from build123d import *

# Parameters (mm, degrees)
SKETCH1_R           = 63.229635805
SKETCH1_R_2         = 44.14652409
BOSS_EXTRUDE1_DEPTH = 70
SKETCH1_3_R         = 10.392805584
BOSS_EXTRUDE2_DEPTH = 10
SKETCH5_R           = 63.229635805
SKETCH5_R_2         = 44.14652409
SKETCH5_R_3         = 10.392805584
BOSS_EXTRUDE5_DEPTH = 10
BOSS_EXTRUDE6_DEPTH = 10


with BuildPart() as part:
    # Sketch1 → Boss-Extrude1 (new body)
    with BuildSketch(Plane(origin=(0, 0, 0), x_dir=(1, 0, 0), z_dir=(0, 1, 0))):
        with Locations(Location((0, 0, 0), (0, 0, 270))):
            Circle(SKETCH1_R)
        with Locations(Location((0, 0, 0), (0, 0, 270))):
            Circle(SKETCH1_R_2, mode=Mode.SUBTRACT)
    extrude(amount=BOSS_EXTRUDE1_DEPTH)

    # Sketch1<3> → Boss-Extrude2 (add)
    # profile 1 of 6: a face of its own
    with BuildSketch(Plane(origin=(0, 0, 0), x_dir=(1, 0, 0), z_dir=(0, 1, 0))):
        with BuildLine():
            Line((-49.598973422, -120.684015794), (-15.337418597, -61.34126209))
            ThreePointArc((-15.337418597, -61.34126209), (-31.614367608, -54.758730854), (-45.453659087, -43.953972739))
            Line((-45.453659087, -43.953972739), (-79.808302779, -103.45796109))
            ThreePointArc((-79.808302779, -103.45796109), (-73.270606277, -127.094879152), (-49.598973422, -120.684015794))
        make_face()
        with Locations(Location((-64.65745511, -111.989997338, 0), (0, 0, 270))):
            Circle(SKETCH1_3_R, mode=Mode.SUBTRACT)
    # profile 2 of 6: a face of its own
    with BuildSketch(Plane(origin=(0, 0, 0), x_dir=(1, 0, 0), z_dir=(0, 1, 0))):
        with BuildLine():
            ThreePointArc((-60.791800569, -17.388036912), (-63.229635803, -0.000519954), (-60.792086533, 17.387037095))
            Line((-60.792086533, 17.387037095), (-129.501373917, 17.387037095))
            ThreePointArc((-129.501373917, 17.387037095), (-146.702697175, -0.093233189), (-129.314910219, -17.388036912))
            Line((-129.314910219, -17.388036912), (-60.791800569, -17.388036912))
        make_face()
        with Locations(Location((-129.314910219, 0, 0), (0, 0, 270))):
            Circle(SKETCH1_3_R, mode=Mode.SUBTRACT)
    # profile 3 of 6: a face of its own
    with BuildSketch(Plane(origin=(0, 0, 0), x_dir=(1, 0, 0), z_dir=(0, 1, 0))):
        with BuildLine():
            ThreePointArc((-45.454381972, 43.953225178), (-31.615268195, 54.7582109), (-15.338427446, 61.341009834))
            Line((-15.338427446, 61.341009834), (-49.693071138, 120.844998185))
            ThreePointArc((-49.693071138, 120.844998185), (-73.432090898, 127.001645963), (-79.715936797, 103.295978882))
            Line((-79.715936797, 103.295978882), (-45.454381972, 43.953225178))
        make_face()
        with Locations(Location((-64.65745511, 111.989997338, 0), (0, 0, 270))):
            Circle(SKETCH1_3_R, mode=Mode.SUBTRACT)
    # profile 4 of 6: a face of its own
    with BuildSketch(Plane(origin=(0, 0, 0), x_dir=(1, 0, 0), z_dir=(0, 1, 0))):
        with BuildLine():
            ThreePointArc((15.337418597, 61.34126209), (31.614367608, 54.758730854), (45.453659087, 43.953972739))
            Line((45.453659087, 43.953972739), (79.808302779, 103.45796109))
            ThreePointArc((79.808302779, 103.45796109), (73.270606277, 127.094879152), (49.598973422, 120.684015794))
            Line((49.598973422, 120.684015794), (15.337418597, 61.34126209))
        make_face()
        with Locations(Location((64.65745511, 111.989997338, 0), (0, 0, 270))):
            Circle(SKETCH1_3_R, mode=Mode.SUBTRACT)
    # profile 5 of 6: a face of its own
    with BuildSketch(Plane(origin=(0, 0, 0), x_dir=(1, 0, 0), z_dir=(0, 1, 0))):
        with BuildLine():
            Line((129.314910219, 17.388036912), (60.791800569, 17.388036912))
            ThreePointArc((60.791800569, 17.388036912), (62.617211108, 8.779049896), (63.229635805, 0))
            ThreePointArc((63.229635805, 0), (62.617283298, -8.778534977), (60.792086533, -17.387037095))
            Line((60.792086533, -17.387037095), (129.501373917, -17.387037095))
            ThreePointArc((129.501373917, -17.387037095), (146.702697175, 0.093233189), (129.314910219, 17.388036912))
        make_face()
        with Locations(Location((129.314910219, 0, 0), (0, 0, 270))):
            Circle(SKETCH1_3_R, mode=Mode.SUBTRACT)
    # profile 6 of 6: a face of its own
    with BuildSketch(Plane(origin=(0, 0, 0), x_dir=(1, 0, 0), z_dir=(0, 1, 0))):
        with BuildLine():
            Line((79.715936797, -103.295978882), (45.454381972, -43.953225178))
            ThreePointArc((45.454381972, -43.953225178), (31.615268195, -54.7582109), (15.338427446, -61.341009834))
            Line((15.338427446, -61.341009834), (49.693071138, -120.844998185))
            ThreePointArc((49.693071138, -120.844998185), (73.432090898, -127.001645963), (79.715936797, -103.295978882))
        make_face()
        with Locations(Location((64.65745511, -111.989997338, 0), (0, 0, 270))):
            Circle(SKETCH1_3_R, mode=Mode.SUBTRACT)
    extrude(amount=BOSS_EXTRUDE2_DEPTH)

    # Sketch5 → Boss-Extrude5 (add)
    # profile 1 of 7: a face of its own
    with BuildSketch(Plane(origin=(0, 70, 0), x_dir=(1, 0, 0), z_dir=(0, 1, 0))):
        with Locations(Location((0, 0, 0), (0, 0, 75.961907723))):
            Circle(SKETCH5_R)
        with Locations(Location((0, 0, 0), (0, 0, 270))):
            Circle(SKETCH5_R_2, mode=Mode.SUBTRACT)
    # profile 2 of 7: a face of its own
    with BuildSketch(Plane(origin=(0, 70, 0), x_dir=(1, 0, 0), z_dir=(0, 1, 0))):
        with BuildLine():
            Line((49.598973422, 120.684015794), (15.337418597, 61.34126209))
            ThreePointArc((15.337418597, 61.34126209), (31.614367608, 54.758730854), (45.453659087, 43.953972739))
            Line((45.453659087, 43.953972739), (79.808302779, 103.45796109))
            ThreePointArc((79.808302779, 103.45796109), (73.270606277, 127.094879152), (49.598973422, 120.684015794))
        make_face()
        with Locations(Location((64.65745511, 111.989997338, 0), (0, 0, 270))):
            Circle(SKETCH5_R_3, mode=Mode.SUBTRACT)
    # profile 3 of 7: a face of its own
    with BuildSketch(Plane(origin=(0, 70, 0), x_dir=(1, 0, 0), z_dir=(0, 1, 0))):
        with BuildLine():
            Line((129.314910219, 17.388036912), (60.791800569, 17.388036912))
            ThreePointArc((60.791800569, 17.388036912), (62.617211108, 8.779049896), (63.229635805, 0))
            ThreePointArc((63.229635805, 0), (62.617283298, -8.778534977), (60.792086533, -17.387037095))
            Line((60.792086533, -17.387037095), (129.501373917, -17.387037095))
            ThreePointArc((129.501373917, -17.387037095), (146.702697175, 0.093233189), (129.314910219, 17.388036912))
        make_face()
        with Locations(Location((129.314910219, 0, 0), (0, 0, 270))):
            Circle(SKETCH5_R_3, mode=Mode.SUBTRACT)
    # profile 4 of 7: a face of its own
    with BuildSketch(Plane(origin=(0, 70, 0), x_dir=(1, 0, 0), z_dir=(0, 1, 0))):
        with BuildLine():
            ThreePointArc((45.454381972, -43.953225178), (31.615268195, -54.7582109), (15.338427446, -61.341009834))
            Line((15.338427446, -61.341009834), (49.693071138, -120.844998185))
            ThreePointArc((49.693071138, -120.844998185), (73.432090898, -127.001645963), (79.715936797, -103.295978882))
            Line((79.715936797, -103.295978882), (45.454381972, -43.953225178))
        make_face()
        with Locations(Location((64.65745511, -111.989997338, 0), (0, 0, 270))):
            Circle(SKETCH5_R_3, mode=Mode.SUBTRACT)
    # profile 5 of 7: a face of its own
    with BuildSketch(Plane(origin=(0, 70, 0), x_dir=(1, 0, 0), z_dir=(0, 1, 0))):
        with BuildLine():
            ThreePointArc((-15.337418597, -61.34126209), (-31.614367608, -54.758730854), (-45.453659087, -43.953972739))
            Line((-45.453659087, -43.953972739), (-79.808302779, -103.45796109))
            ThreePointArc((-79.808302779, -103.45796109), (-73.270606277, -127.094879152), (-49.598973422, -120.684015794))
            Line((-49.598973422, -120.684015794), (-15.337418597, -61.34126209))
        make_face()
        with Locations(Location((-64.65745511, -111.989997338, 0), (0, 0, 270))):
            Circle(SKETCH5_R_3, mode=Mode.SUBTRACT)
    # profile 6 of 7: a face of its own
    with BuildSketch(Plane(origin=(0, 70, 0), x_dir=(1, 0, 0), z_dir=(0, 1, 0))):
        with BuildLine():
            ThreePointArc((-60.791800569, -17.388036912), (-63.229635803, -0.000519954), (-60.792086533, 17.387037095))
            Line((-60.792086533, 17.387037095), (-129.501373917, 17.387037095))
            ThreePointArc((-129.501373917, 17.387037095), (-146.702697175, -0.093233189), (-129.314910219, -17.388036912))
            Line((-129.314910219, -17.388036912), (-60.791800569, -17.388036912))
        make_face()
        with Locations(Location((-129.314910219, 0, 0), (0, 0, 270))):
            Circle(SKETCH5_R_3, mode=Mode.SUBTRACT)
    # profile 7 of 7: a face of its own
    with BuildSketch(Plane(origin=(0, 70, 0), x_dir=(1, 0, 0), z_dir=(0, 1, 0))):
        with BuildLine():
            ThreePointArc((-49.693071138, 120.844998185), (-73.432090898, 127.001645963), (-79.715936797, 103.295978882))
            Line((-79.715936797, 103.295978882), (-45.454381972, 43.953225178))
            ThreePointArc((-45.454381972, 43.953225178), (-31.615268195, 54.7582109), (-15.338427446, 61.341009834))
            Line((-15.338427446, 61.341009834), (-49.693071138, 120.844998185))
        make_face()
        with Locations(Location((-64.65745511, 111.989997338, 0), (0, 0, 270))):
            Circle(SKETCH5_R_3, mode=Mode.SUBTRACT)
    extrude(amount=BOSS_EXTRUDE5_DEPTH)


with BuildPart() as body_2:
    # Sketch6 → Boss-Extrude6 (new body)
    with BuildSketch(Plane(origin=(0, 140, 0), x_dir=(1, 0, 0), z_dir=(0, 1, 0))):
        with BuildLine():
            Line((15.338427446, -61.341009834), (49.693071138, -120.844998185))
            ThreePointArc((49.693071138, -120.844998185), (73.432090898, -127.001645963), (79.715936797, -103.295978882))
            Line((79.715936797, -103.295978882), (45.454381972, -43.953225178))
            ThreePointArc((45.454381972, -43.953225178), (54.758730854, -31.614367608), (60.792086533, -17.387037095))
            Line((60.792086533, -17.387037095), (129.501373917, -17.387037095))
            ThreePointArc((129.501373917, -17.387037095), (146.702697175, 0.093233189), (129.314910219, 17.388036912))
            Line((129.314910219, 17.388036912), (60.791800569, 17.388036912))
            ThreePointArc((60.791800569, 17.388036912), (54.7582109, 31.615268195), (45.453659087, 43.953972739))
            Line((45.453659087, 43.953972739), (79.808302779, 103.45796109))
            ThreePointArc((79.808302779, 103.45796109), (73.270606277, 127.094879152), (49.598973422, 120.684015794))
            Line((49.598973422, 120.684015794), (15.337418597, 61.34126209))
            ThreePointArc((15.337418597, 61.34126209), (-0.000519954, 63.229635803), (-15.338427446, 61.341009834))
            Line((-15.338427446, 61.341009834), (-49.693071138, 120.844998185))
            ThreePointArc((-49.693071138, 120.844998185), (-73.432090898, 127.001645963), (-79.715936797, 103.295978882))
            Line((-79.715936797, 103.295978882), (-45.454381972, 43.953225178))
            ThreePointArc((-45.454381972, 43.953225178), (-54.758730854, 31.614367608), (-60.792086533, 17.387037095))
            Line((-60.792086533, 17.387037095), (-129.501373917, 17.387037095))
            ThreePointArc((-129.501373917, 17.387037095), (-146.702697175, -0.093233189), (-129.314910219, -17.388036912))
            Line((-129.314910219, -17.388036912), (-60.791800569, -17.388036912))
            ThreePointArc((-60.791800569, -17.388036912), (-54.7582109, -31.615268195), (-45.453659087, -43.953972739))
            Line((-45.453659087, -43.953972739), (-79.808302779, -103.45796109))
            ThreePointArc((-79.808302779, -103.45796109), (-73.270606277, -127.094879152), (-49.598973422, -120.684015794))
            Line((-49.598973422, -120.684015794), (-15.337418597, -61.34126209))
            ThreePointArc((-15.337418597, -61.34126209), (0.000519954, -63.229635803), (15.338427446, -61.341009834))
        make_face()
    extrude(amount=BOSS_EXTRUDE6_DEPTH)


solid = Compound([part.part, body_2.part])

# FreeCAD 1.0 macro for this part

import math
import FreeCAD as App
import Part
import Sketcher
from FreeCAD import Vector
Q = App.Units.Quantity

doc = App.newDocument("Part")
params = doc.addObject("Spreadsheet::Sheet", "Params")
for row, (alias, value) in enumerate([
    ("pad1_length", "70 mm"),
    ("pad2_length", "10 mm"),
    ("pad3_length", "10 mm"),
    ("pad4_length", "10 mm"),
], start=1):
    params.set(f"A{row}", alias)
    params.set(f"B{row}", "=" + value)
    params.setAlias(f"B{row}", alias)

body = doc.addObject("PartDesign::Body", "Body")

# Sketch on XZ plane
sketch1 = body.newObject("Sketcher::SketchObject", "Sketch")
sketch1.AttachmentSupport = (doc.getObject("XZ_Plane"), [""])
sketch1.MapMode = "FlatFace"
sketch1.addGeometry(Part.Circle(Vector(0, 0, 0), Vector(0, 0, 1), 63), False)
sketch1.addGeometry(Part.Circle(Vector(0, 0, 0), Vector(0, 0, 1), 44), False)
sketch1.addConstraint(Sketcher.Constraint("Coincident", 0, 3, -1, 1))
sketch1.addConstraint(Sketcher.Constraint("Coincident", 1, 3, -1, 1))
sketch1.addConstraint(Sketcher.Constraint("Diameter", 0, Q("126.459272 mm")))
sketch1.addConstraint(Sketcher.Constraint("Diameter", 1, Q("88.293048 mm")))
pad1 = body.newObject("PartDesign::Pad", "Pad")
pad1.Profile = sketch1
pad1.setExpression("Length", "Params.pad1_length")
pad1.Reversed = True

# Sketch on XZ plane
sketch2 = body.newObject("Sketcher::SketchObject", "Sketch001")
sketch2.AttachmentSupport = (doc.getObject("XZ_Plane"), [""])
sketch2.MapMode = "FlatFace"
sketch2.addGeometry(Part.LineSegment(Vector(-50, 121, 0), Vector(-15, 61, 0)), False)
sketch2.addGeometry(Part.ArcOfCircle(Part.Circle(Vector(0, 0, 0), Vector(0, 0, 1), 63), math.radians(104), math.radians(136)), False)
sketch2.addGeometry(Part.LineSegment(Vector(-45, 44, 0), Vector(-80, 103, 0)), False)
sketch2.addGeometry(Part.ArcOfCircle(Part.Circle(Vector(-65, 112, 0), Vector(0, 0, 1), 17), math.radians(30), math.radians(209)), False)
sketch2.addGeometry(Part.Circle(Vector(-65, 112, 0), Vector(0, 0, 1), 10), False)
sketch2.addGeometry(Part.ArcOfCircle(Part.Circle(Vector(0, 0, 0), Vector(0, 0, 1), 63), math.radians(164), math.radians(196)), False)
sketch2.addGeometry(Part.LineSegment(Vector(-61, -17, 0), Vector(-130, -17, 0)), False)
sketch2.addGeometry(Part.ArcOfCircle(Part.Circle(Vector(-129, 0, 0), Vector(0, 0, 1), 17), math.radians(90), math.radians(269)), False)
sketch2.addGeometry(Part.LineSegment(Vector(-129, 17, 0), Vector(-61, 17, 0)), False)
sketch2.addGeometry(Part.Circle(Vector(-129, 0, 0), Vector(0, 0, 1), 10), False)
sketch2.addGeometry(Part.ArcOfCircle(Part.Circle(Vector(0, 0, 0), Vector(0, 0, 1), 63), math.radians(-136), math.radians(-104)), False)
sketch2.addGeometry(Part.LineSegment(Vector(-15, -61, 0), Vector(-50, -121, 0)), False)
sketch2.addGeometry(Part.ArcOfCircle(Part.Circle(Vector(-65, -112, 0), Vector(0, 0, 1), 17), math.radians(150), math.radians(329)), False)
sketch2.addGeometry(Part.LineSegment(Vector(-80, -103, 0), Vector(-45, -44, 0)), False)
sketch2.addGeometry(Part.Circle(Vector(-65, -112, 0), Vector(0, 0, 1), 10), False)
sketch2.addGeometry(Part.ArcOfCircle(Part.Circle(Vector(0, 0, 0), Vector(0, 0, 1), 63), math.radians(-76), math.radians(-44)), False)
sketch2.addGeometry(Part.LineSegment(Vector(45, -44, 0), Vector(80, -103, 0)), False)
sketch2.addGeometry(Part.ArcOfCircle(Part.Circle(Vector(65, -112, 0), Vector(0, 0, 1), 17), math.radians(-150), math.radians(29)), False)
sketch2.addGeometry(Part.LineSegment(Vector(50, -121, 0), Vector(15, -61, 0)), False)
sketch2.addGeometry(Part.Circle(Vector(65, -112, 0), Vector(0, 0, 1), 10), False)
sketch2.addGeometry(Part.LineSegment(Vector(129, -17, 0), Vector(61, -17, 0)), False)
sketch2.addGeometry(Part.ArcOfCircle(Part.Circle(Vector(0, 0, 0), Vector(0, 0, 1), 63), math.radians(-15.96), math.radians(0)), False)
sketch2.addGeometry(Part.ArcOfCircle(Part.Circle(Vector(0, 0, 0), Vector(0, 0, 1), 63), math.radians(0), math.radians(15.96)), False)
sketch2.addGeometry(Part.LineSegment(Vector(61, 17, 0), Vector(130, 17, 0)), False)
sketch2.addGeometry(Part.ArcOfCircle(Part.Circle(Vector(129, 0, 0), Vector(0, 0, 1), 17), math.radians(-90), math.radians(89)), False)
sketch2.addGeometry(Part.Circle(Vector(129, 0, 0), Vector(0, 0, 1), 10), False)
sketch2.addGeometry(Part.LineSegment(Vector(80, 103, 0), Vector(45, 44, 0)), False)
sketch2.addGeometry(Part.ArcOfCircle(Part.Circle(Vector(0, 0, 0), Vector(0, 0, 1), 63), math.radians(44), math.radians(76)), False)
sketch2.addGeometry(Part.LineSegment(Vector(15, 61, 0), Vector(50, 121, 0)), False)
sketch2.addGeometry(Part.ArcOfCircle(Part.Circle(Vector(65, 112, 0), Vector(0, 0, 1), 17), math.radians(-30), math.radians(149)), False)
sketch2.addGeometry(Part.Circle(Vector(65, 112, 0), Vector(0, 0, 1), 10), False)
sketch2.addConstraint(Sketcher.Constraint("Coincident", 0, 2, 1, 1))
sketch2.addConstraint(Sketcher.Constraint("Coincident", 1, 2, 2, 1))
sketch2.addConstraint(Sketcher.Constraint("Coincident", 2, 2, 3, 2))
sketch2.addConstraint(Sketcher.Constraint("Tangent", 3, 1, 0, 1))
sketch2.addConstraint(Sketcher.Constraint("Coincident", 5, 2, 6, 1))
sketch2.addConstraint(Sketcher.Constraint("Coincident", 6, 2, 7, 2))
sketch2.addConstraint(Sketcher.Constraint("Tangent", 7, 1, 8, 1))
sketch2.addConstraint(Sketcher.Constraint("Coincident", 8, 2, 5, 1))
sketch2.addConstraint(Sketcher.Constraint("Coincident", 10, 2, 11, 1))
sketch2.addConstraint(Sketcher.Constraint("Coincident", 11, 2, 12, 2))
sketch2.addConstraint(Sketcher.Constraint("Tangent", 12, 1, 13, 1))
sketch2.addConstraint(Sketcher.Constraint("Coincident", 13, 2, 10, 1))
sketch2.addConstraint(Sketcher.Constraint("Coincident", 15, 2, 16, 1))
sketch2.addConstraint(Sketcher.Constraint("Coincident", 16, 2, 17, 2))
sketch2.addConstraint(Sketcher.Constraint("Tangent", 17, 1, 18, 1))
sketch2.addConstraint(Sketcher.Constraint("Coincident", 18, 2, 15, 1))
sketch2.addConstraint(Sketcher.Constraint("Coincident", 20, 2, 21, 1))
sketch2.addConstraint(Sketcher.Constraint("Tangent", 21, 2, 22, 1))
sketch2.addConstraint(Sketcher.Constraint("Coincident", 22, 2, 23, 1))
sketch2.addConstraint(Sketcher.Constraint("Coincident", 23, 2, 24, 2))
sketch2.addConstraint(Sketcher.Constraint("Tangent", 24, 1, 20, 1))
sketch2.addConstraint(Sketcher.Constraint("Coincident", 26, 2, 27, 1))
sketch2.addConstraint(Sketcher.Constraint("Coincident", 27, 2, 28, 1))
sketch2.addConstraint(Sketcher.Constraint("Coincident", 28, 2, 29, 2))
sketch2.addConstraint(Sketcher.Constraint("Tangent", 29, 1, 26, 1))
sketch2.addConstraint(Sketcher.Constraint("Horizontal", 6))
sketch2.addConstraint(Sketcher.Constraint("Horizontal", 8))
sketch2.addConstraint(Sketcher.Constraint("Horizontal", 20))
sketch2.addConstraint(Sketcher.Constraint("Horizontal", 23))
sketch2.addConstraint(Sketcher.Constraint("Coincident", 1, 3, -1, 1))
sketch2.addConstraint(Sketcher.Constraint("Coincident", 5, 3, -1, 1))
sketch2.addConstraint(Sketcher.Constraint("Coincident", 10, 3, -1, 1))
sketch2.addConstraint(Sketcher.Constraint("Coincident", 15, 3, -1, 1))
sketch2.addConstraint(Sketcher.Constraint("Coincident", 21, 3, -1, 1))
sketch2.addConstraint(Sketcher.Constraint("Coincident", 27, 3, -1, 1))
sketch2.addConstraint(Sketcher.Constraint("Coincident", 4, 3, 3, 3))
sketch2.addConstraint(Sketcher.Constraint("Coincident", 9, 3, 7, 3))
sketch2.addConstraint(Sketcher.Constraint("Coincident", 14, 3, 12, 3))
sketch2.addConstraint(Sketcher.Constraint("Coincident", 19, 3, 17, 3))
sketch2.addConstraint(Sketcher.Constraint("Coincident", 25, 3, 24, 3))
sketch2.addConstraint(Sketcher.Constraint("Coincident", 30, 3, 29, 3))
sketch2.addConstraint(Sketcher.Constraint("Equal", 1, 5))
sketch2.addConstraint(Sketcher.Constraint("Equal", 3, 7))
sketch2.addConstraint(Sketcher.Constraint("Equal", 4, 9))
sketch2.addConstraint(Sketcher.Constraint("Equal", 5, 10))
sketch2.addConstraint(Sketcher.Constraint("Equal", 7, 12))
sketch2.addConstraint(Sketcher.Constraint("Equal", 9, 14))
sketch2.addConstraint(Sketcher.Constraint("Equal", 10, 15))
sketch2.addConstraint(Sketcher.Constraint("Equal", 12, 17))
sketch2.addConstraint(Sketcher.Constraint("Equal", 14, 19))
sketch2.addConstraint(Sketcher.Constraint("Equal", 15, 21))
sketch2.addConstraint(Sketcher.Constraint("Equal", 21, 22))
sketch2.addConstraint(Sketcher.Constraint("Equal", 17, 24))
sketch2.addConstraint(Sketcher.Constraint("Equal", 19, 25))
sketch2.addConstraint(Sketcher.Constraint("Equal", 22, 27))
sketch2.addConstraint(Sketcher.Constraint("Equal", 24, 29))
sketch2.addConstraint(Sketcher.Constraint("Equal", 25, 30))
sketch2.addConstraint(Sketcher.Constraint("Symmetric", 3, 3, 17, 3, -1, 1))
sketch2.addConstraint(Sketcher.Constraint("Symmetric", 7, 3, 24, 3, -1, 1))
sketch2.addConstraint(Sketcher.Constraint("Symmetric", 12, 3, 29, 3, -1, 1))
sketch2.addConstraint(Sketcher.Constraint("Symmetric", 12, 3, 17, 3, -2))
sketch2.addConstraint(Sketcher.Constraint("PointOnObject", 7, 3, -1))
sketch2.addConstraint(Sketcher.Constraint("PointOnObject", 21, 2, -1))
sketch2.addConstraint(Sketcher.Constraint("Parallel", 0, 2))
sketch2.addConstraint(Sketcher.Constraint("Parallel", 11, 13))
sketch2.addConstraint(Sketcher.Constraint("Parallel", 2, 16))
sketch2.addConstraint(Sketcher.Constraint("Parallel", 16, 18))
sketch2.addConstraint(Sketcher.Constraint("Parallel", 13, 26))
sketch2.addConstraint(Sketcher.Constraint("Parallel", 26, 28))
sketch2.addConstraint(Sketcher.Constraint("Equal", 6, 23))
sketch2.addConstraint(Sketcher.Constraint("Equal", 2, 11))
sketch2.addConstraint(Sketcher.Constraint("Equal", 0, 13))
sketch2.addConstraint(Sketcher.Constraint("Equal", 11, 16))
sketch2.addConstraint(Sketcher.Constraint("Equal", 16, 28))
sketch2.addConstraint(Sketcher.Constraint("Angle", 0, Q("-60 deg")))
sketch2.addConstraint(Sketcher.Constraint("Angle", 11, Q("-120 deg")))
sketch2.addConstraint(Sketcher.Constraint("Diameter", 4, Q("20.785611 mm")))
sketch2.addConstraint(Sketcher.Constraint("DistanceY", 11, 2, -1, 1, Q("120.844998 mm")))
sketch2.addConstraint(Sketcher.Constraint("Radius", 1, Q("63.229636 mm")))
sketch2.addConstraint(Sketcher.Constraint("Radius", 3, Q("17.388037 mm")))
sketch2.addConstraint(Sketcher.Constraint("DistanceY", 11, 2, 12, 3, Q("8.855001 mm")))
sketch2.addConstraint(Sketcher.Constraint("DistanceX", 8, 1, 8, 2, Q("68.52311 mm")))
sketch2.addConstraint(Sketcher.Constraint("DistanceX", 6, 2, 6, 1, Q("68.709287 mm")))
pad2 = body.newObject("PartDesign::Pad", "Pad001")
pad2.Profile = sketch2
pad2.setExpression("Length", "Params.pad2_length")
pad2.Reversed = True

# Sketch on XZ plane
sketch3 = body.newObject("Sketcher::SketchObject", "Sketch002")
sketch3.AttachmentSupport = (doc.getObject("XZ_Plane"), [""])
sketch3.MapMode = "FlatFace"
sketch3.AttachmentOffset = App.Placement(Vector(0, 0, -70), App.Rotation())
sketch3.addGeometry(Part.ArcOfCircle(Part.Circle(Vector(0, 0, 0), Vector(0, 0, 1), 63), math.radians(-104), math.radians(-76)), False)
sketch3.addGeometry(Part.LineSegment(Vector(-15, -61, 0), Vector(-50, -121, 0)), False)
sketch3.addGeometry(Part.ArcOfCircle(Part.Circle(Vector(-65, -112, 0), Vector(0, 0, 1), 17), math.radians(150), math.radians(329)), False)
sketch3.addGeometry(Part.LineSegment(Vector(-80, -103, 0), Vector(-45, -44, 0)), False)
sketch3.addGeometry(Part.ArcOfCircle(Part.Circle(Vector(0, 0, 0), Vector(0, 0, 1), 63), math.radians(-164), math.radians(-136)), False)
sketch3.addGeometry(Part.LineSegment(Vector(-61, -17, 0), Vector(-130, -17, 0)), False)
sketch3.addGeometry(Part.ArcOfCircle(Part.Circle(Vector(-129, 0, 0), Vector(0, 0, 1), 17), math.radians(90), math.radians(269)), False)
sketch3.addGeometry(Part.LineSegment(Vector(-129, 17, 0), Vector(-61, 17, 0)), False)
sketch3.addGeometry(Part.ArcOfCircle(Part.Circle(Vector(0, 0, 0), Vector(0, 0, 1), 63), math.radians(136), math.radians(164)), False)
sketch3.addGeometry(Part.LineSegment(Vector(-45, 44, 0), Vector(-80, 103, 0)), False)
sketch3.addGeometry(Part.ArcOfCircle(Part.Circle(Vector(-65, 112, 0), Vector(0, 0, 1), 17), math.radians(30), math.radians(209)), False)
sketch3.addGeometry(Part.LineSegment(Vector(-50, 121, 0), Vector(-15, 61, 0)), False)
sketch3.addGeometry(Part.ArcOfCircle(Part.Circle(Vector(0, 0, 0), Vector(0, 0, 1), 63), math.radians(76), math.radians(104)), False)
sketch3.addGeometry(Part.LineSegment(Vector(15, 61, 0), Vector(50, 121, 0)), False)
sketch3.addGeometry(Part.ArcOfCircle(Part.Circle(Vector(65, 112, 0), Vector(0, 0, 1), 17), math.radians(-30), math.radians(149)), False)
sketch3.addGeometry(Part.LineSegment(Vector(80, 103, 0), Vector(45, 44, 0)), False)
sketch3.addGeometry(Part.ArcOfCircle(Part.Circle(Vector(0, 0, 0), Vector(0, 0, 1), 63), math.radians(16), math.radians(44)), False)
sketch3.addGeometry(Part.LineSegment(Vector(61, 17, 0), Vector(130, 17, 0)), False)
sketch3.addGeometry(Part.ArcOfCircle(Part.Circle(Vector(129, 0, 0), Vector(0, 0, 1), 17), math.radians(-90), math.radians(89)), False)
sketch3.addGeometry(Part.LineSegment(Vector(129, -17, 0), Vector(61, -17, 0)), False)
sketch3.addGeometry(Part.ArcOfCircle(Part.Circle(Vector(0, 0, 0), Vector(0, 0, 1), 63), math.radians(-44), math.radians(-16)), False)
sketch3.addGeometry(Part.LineSegment(Vector(45, -44, 0), Vector(80, -103, 0)), False)
sketch3.addGeometry(Part.ArcOfCircle(Part.Circle(Vector(65, -112, 0), Vector(0, 0, 1), 17), math.radians(-150), math.radians(29)), False)
sketch3.addGeometry(Part.LineSegment(Vector(50, -121, 0), Vector(15, -61, 0)), False)
sketch3.addGeometry(Part.Circle(Vector(0, 0, 0), Vector(0, 0, 1), 44), False)
sketch3.addGeometry(Part.Circle(Vector(-65, -112, 0), Vector(0, 0, 1), 10), False)
sketch3.addGeometry(Part.Circle(Vector(-129, 0, 0), Vector(0, 0, 1), 10), False)
sketch3.addGeometry(Part.Circle(Vector(-65, 112, 0), Vector(0, 0, 1), 10), False)
sketch3.addGeometry(Part.Circle(Vector(65, 112, 0), Vector(0, 0, 1), 10), False)
sketch3.addGeometry(Part.Circle(Vector(129, 0, 0), Vector(0, 0, 1), 10), False)
sketch3.addGeometry(Part.Circle(Vector(65, -112, 0), Vector(0, 0, 1), 10), False)
sketch3.addConstraint(Sketcher.Constraint("Coincident", 0, 1, 1, 1))
sketch3.addConstraint(Sketcher.Constraint("Coincident", 1, 2, 2, 2))
sketch3.addConstraint(Sketcher.Constraint("Tangent", 2, 1, 3, 1))
sketch3.addConstraint(Sketcher.Constraint("Coincident", 3, 2, 4, 2))
sketch3.addConstraint(Sketcher.Constraint("Coincident", 4, 1, 5, 1))
sketch3.addConstraint(Sketcher.Constraint("Coincident", 5, 2, 6, 2))
sketch3.addConstraint(Sketcher.Constraint("Tangent", 6, 1, 7, 1))
sketch3.addConstraint(Sketcher.Constraint("Coincident", 7, 2, 8, 2))
sketch3.addConstraint(Sketcher.Constraint("Coincident", 8, 1, 9, 1))
sketch3.addConstraint(Sketcher.Constraint("Coincident", 9, 2, 10, 2))
sketch3.addConstraint(Sketcher.Constraint("Tangent", 10, 1, 11, 1))
sketch3.addConstraint(Sketcher.Constraint("Coincident", 11, 2, 12, 2))
sketch3.addConstraint(Sketcher.Constraint("Coincident", 12, 1, 13, 1))
sketch3.addConstraint(Sketcher.Constraint("Coincident", 13, 2, 14, 2))
sketch3.addConstraint(Sketcher.Constraint("Tangent", 14, 1, 15, 1))
sketch3.addConstraint(Sketcher.Constraint("Coincident", 15, 2, 16, 2))
sketch3.addConstraint(Sketcher.Constraint("Coincident", 16, 1, 17, 1))
sketch3.addConstraint(Sketcher.Constraint("Coincident", 17, 2, 18, 2))
sketch3.addConstraint(Sketcher.Constraint("Tangent", 18, 1, 19, 1))
sketch3.addConstraint(Sketcher.Constraint("Coincident", 19, 2, 20, 2))
sketch3.addConstraint(Sketcher.Constraint("Coincident", 20, 1, 21, 1))
sketch3.addConstraint(Sketcher.Constraint("Coincident", 21, 2, 22, 2))
sketch3.addConstraint(Sketcher.Constraint("Tangent", 22, 1, 23, 1))
sketch3.addConstraint(Sketcher.Constraint("Coincident", 23, 2, 0, 2))
sketch3.addConstraint(Sketcher.Constraint("Horizontal", 5))
sketch3.addConstraint(Sketcher.Constraint("Horizontal", 7))
sketch3.addConstraint(Sketcher.Constraint("Horizontal", 17))
sketch3.addConstraint(Sketcher.Constraint("Horizontal", 19))
sketch3.addConstraint(Sketcher.Constraint("Coincident", 0, 3, -1, 1))
sketch3.addConstraint(Sketcher.Constraint("Coincident", 4, 3, -1, 1))
sketch3.addConstraint(Sketcher.Constraint("Coincident", 8, 3, -1, 1))
sketch3.addConstraint(Sketcher.Constraint("Coincident", 12, 3, -1, 1))
sketch3.addConstraint(Sketcher.Constraint("Coincident", 16, 3, -1, 1))
sketch3.addConstraint(Sketcher.Constraint("Coincident", 20, 3, -1, 1))
sketch3.addConstraint(Sketcher.Constraint("Coincident", 24, 3, -1, 1))
sketch3.addConstraint(Sketcher.Constraint("Coincident", 25, 3, 2, 3))
sketch3.addConstraint(Sketcher.Constraint("Coincident", 26, 3, 6, 3))
sketch3.addConstraint(Sketcher.Constraint("Coincident", 27, 3, 10, 3))
sketch3.addConstraint(Sketcher.Constraint("Coincident", 28, 3, 14, 3))
sketch3.addConstraint(Sketcher.Constraint("Coincident", 29, 3, 18, 3))
sketch3.addConstraint(Sketcher.Constraint("Coincident", 30, 3, 22, 3))
sketch3.addConstraint(Sketcher.Constraint("Equal", 0, 4))
sketch3.addConstraint(Sketcher.Constraint("Equal", 2, 6))
sketch3.addConstraint(Sketcher.Constraint("Equal", 4, 8))
sketch3.addConstraint(Sketcher.Constraint("Equal", 6, 10))
sketch3.addConstraint(Sketcher.Constraint("Equal", 8, 12))
sketch3.addConstraint(Sketcher.Constraint("Equal", 10, 14))
sketch3.addConstraint(Sketcher.Constraint("Equal", 12, 16))
sketch3.addConstraint(Sketcher.Constraint("Equal", 14, 18))
sketch3.addConstraint(Sketcher.Constraint("Equal", 16, 20))
sketch3.addConstraint(Sketcher.Constraint("Equal", 18, 22))
sketch3.addConstraint(Sketcher.Constraint("Equal", 25, 26))
sketch3.addConstraint(Sketcher.Constraint("Equal", 26, 27))
sketch3.addConstraint(Sketcher.Constraint("Equal", 27, 28))
sketch3.addConstraint(Sketcher.Constraint("Equal", 28, 29))
sketch3.addConstraint(Sketcher.Constraint("Equal", 29, 30))
sketch3.addConstraint(Sketcher.Constraint("Symmetric", 2, 3, 14, 3, -1, 1))
sketch3.addConstraint(Sketcher.Constraint("Symmetric", 6, 3, 18, 3, -1, 1))
sketch3.addConstraint(Sketcher.Constraint("Symmetric", 10, 3, 22, 3, -1, 1))
sketch3.addConstraint(Sketcher.Constraint("Symmetric", 10, 3, 14, 3, -2))
sketch3.addConstraint(Sketcher.Constraint("PointOnObject", 6, 3, -1))
sketch3.addConstraint(Sketcher.Constraint("Parallel", 1, 3))
sketch3.addConstraint(Sketcher.Constraint("Parallel", 9, 11))
sketch3.addConstraint(Sketcher.Constraint("Parallel", 3, 13))
sketch3.addConstraint(Sketcher.Constraint("Parallel", 13, 15))
sketch3.addConstraint(Sketcher.Constraint("Parallel", 11, 21))
sketch3.addConstraint(Sketcher.Constraint("Parallel", 21, 23))
sketch3.addConstraint(Sketcher.Constraint("Equal", 5, 17))
sketch3.addConstraint(Sketcher.Constraint("Equal", 1, 9))
sketch3.addConstraint(Sketcher.Constraint("Equal", 3, 11))
sketch3.addConstraint(Sketcher.Constraint("Equal", 9, 13))
sketch3.addConstraint(Sketcher.Constraint("Equal", 13, 21))
sketch3.addConstraint(Sketcher.Constraint("Angle", 1, Q("-120 deg")))
sketch3.addConstraint(Sketcher.Constraint("Angle", 9, Q("120 deg")))
sketch3.addConstraint(Sketcher.Constraint("Diameter", 24, Q("88.293048 mm")))
sketch3.addConstraint(Sketcher.Constraint("Diameter", 25, Q("20.785611 mm")))
sketch3.addConstraint(Sketcher.Constraint("DistanceY", 1, 2, -1, 1, Q("120.844998 mm")))
sketch3.addConstraint(Sketcher.Constraint("Radius", 0, Q("63.229636 mm")))
sketch3.addConstraint(Sketcher.Constraint("Radius", 2, Q("17.388037 mm")))
sketch3.addConstraint(Sketcher.Constraint("DistanceY", 1, 2, 2, 3, Q("8.855001 mm")))
sketch3.addConstraint(Sketcher.Constraint("DistanceX", 7, 1, 7, 2, Q("68.52311 mm")))
sketch3.addConstraint(Sketcher.Constraint("DistanceX", 5, 2, 5, 1, Q("68.709287 mm")))
pad3 = body.newObject("PartDesign::Pad", "Pad002")
pad3.Profile = sketch3
pad3.setExpression("Length", "Params.pad3_length")
pad3.Reversed = True
body2 = doc.addObject("PartDesign::Body", "Body001")

# Sketch on XZ plane
sketch4 = body2.newObject("Sketcher::SketchObject", "Sketch003")
sketch4.AttachmentSupport = (doc.getObject("XZ_Plane001"), [""])
sketch4.MapMode = "FlatFace"
sketch4.AttachmentOffset = App.Placement(Vector(0, 0, -140), App.Rotation())
sketch4.addGeometry(Part.LineSegment(Vector(15, 61, 0), Vector(50, 121, 0)), False)
sketch4.addGeometry(Part.ArcOfCircle(Part.Circle(Vector(65, 112, 0), Vector(0, 0, 1), 17), math.radians(-30), math.radians(149)), False)
sketch4.addGeometry(Part.LineSegment(Vector(80, 103, 0), Vector(45, 44, 0)), False)
sketch4.addGeometry(Part.ArcOfCircle(Part.Circle(Vector(0, 0, 0), Vector(0, 0, 1), 63), math.radians(16), math.radians(44)), False)
sketch4.addGeometry(Part.LineSegment(Vector(61, 17, 0), Vector(130, 17, 0)), False)
sketch4.addGeometry(Part.ArcOfCircle(Part.Circle(Vector(129, 0, 0), Vector(0, 0, 1), 17), math.radians(-90), math.radians(89)), False)
sketch4.addGeometry(Part.LineSegment(Vector(129, -17, 0), Vector(61, -17, 0)), False)
sketch4.addGeometry(Part.ArcOfCircle(Part.Circle(Vector(0, 0, 0), Vector(0, 0, 1), 63), math.radians(-44), math.radians(-16)), False)
sketch4.addGeometry(Part.LineSegment(Vector(45, -44, 0), Vector(80, -103, 0)), False)
sketch4.addGeometry(Part.ArcOfCircle(Part.Circle(Vector(65, -112, 0), Vector(0, 0, 1), 17), math.radians(-150), math.radians(29)), False)
sketch4.addGeometry(Part.LineSegment(Vector(50, -121, 0), Vector(15, -61, 0)), False)
sketch4.addGeometry(Part.ArcOfCircle(Part.Circle(Vector(0, 0, 0), Vector(0, 0, 1), 63), math.radians(-104), math.radians(-76)), False)
sketch4.addGeometry(Part.LineSegment(Vector(-15, -61, 0), Vector(-50, -121, 0)), False)
sketch4.addGeometry(Part.ArcOfCircle(Part.Circle(Vector(-65, -112, 0), Vector(0, 0, 1), 17), math.radians(150), math.radians(329)), False)
sketch4.addGeometry(Part.LineSegment(Vector(-80, -103, 0), Vector(-45, -44, 0)), False)
sketch4.addGeometry(Part.ArcOfCircle(Part.Circle(Vector(0, 0, 0), Vector(0, 0, 1), 63), math.radians(-164), math.radians(-136)), False)
sketch4.addGeometry(Part.LineSegment(Vector(-61, -17, 0), Vector(-130, -17, 0)), False)
sketch4.addGeometry(Part.ArcOfCircle(Part.Circle(Vector(-129, 0, 0), Vector(0, 0, 1), 17), math.radians(90), math.radians(269)), False)
sketch4.addGeometry(Part.LineSegment(Vector(-129, 17, 0), Vector(-61, 17, 0)), False)
sketch4.addGeometry(Part.ArcOfCircle(Part.Circle(Vector(0, 0, 0), Vector(0, 0, 1), 63), math.radians(136), math.radians(164)), False)
sketch4.addGeometry(Part.LineSegment(Vector(-45, 44, 0), Vector(-80, 103, 0)), False)
sketch4.addGeometry(Part.ArcOfCircle(Part.Circle(Vector(-65, 112, 0), Vector(0, 0, 1), 17), math.radians(30), math.radians(209)), False)
sketch4.addGeometry(Part.LineSegment(Vector(-50, 121, 0), Vector(-15, 61, 0)), False)
sketch4.addGeometry(Part.ArcOfCircle(Part.Circle(Vector(0, 0, 0), Vector(0, 0, 1), 63), math.radians(76), math.radians(104)), False)
sketch4.addConstraint(Sketcher.Constraint("Coincident", 0, 2, 1, 2))
sketch4.addConstraint(Sketcher.Constraint("Tangent", 1, 1, 2, 1))
sketch4.addConstraint(Sketcher.Constraint("Coincident", 2, 2, 3, 2))
sketch4.addConstraint(Sketcher.Constraint("Coincident", 3, 1, 4, 1))
sketch4.addConstraint(Sketcher.Constraint("Coincident", 4, 2, 5, 2))
sketch4.addConstraint(Sketcher.Constraint("Tangent", 5, 1, 6, 1))
sketch4.addConstraint(Sketcher.Constraint("Coincident", 6, 2, 7, 2))
sketch4.addConstraint(Sketcher.Constraint("Coincident", 7, 1, 8, 1))
sketch4.addConstraint(Sketcher.Constraint("Coincident", 8, 2, 9, 2))
sketch4.addConstraint(Sketcher.Constraint("Tangent", 9, 1, 10, 1))
sketch4.addConstraint(Sketcher.Constraint("Coincident", 10, 2, 11, 2))
sketch4.addConstraint(Sketcher.Constraint("Coincident", 11, 1, 12, 1))
sketch4.addConstraint(Sketcher.Constraint("Coincident", 12, 2, 13, 2))
sketch4.addConstraint(Sketcher.Constraint("Tangent", 13, 1, 14, 1))
sketch4.addConstraint(Sketcher.Constraint("Coincident", 14, 2, 15, 2))
sketch4.addConstraint(Sketcher.Constraint("Coincident", 15, 1, 16, 1))
sketch4.addConstraint(Sketcher.Constraint("Coincident", 16, 2, 17, 2))
sketch4.addConstraint(Sketcher.Constraint("Tangent", 17, 1, 18, 1))
sketch4.addConstraint(Sketcher.Constraint("Coincident", 18, 2, 19, 2))
sketch4.addConstraint(Sketcher.Constraint("Coincident", 19, 1, 20, 1))
sketch4.addConstraint(Sketcher.Constraint("Coincident", 20, 2, 21, 2))
sketch4.addConstraint(Sketcher.Constraint("Tangent", 21, 1, 22, 1))
sketch4.addConstraint(Sketcher.Constraint("Coincident", 22, 2, 23, 2))
sketch4.addConstraint(Sketcher.Constraint("Coincident", 23, 1, 0, 1))
sketch4.addConstraint(Sketcher.Constraint("Horizontal", 4))
sketch4.addConstraint(Sketcher.Constraint("Horizontal", 6))
sketch4.addConstraint(Sketcher.Constraint("Horizontal", 16))
sketch4.addConstraint(Sketcher.Constraint("Horizontal", 18))
sketch4.addConstraint(Sketcher.Constraint("Coincident", 3, 3, -1, 1))
sketch4.addConstraint(Sketcher.Constraint("Coincident", 7, 3, -1, 1))
sketch4.addConstraint(Sketcher.Constraint("Coincident", 11, 3, -1, 1))
sketch4.addConstraint(Sketcher.Constraint("Coincident", 15, 3, -1, 1))
sketch4.addConstraint(Sketcher.Constraint("Coincident", 19, 3, -1, 1))
sketch4.addConstraint(Sketcher.Constraint("Coincident", 23, 3, -1, 1))
sketch4.addConstraint(Sketcher.Constraint("Equal", 1, 5))
sketch4.addConstraint(Sketcher.Constraint("Equal", 3, 7))
sketch4.addConstraint(Sketcher.Constraint("Equal", 5, 9))
sketch4.addConstraint(Sketcher.Constraint("Equal", 7, 11))
sketch4.addConstraint(Sketcher.Constraint("Equal", 9, 13))
sketch4.addConstraint(Sketcher.Constraint("Equal", 11, 15))
sketch4.addConstraint(Sketcher.Constraint("Equal", 13, 17))
sketch4.addConstraint(Sketcher.Constraint("Equal", 15, 19))
sketch4.addConstraint(Sketcher.Constraint("Equal", 17, 21))
sketch4.addConstraint(Sketcher.Constraint("Equal", 19, 23))
sketch4.addConstraint(Sketcher.Constraint("Symmetric", 1, 3, 13, 3, -1, 1))
sketch4.addConstraint(Sketcher.Constraint("Symmetric", 5, 3, 17, 3, -1, 1))
sketch4.addConstraint(Sketcher.Constraint("Symmetric", 9, 3, 21, 3, -1, 1))
sketch4.addConstraint(Sketcher.Constraint("Symmetric", 9, 3, 13, 3, -2))
sketch4.addConstraint(Sketcher.Constraint("PointOnObject", 5, 3, -1))
sketch4.addConstraint(Sketcher.Constraint("Parallel", 0, 2))
sketch4.addConstraint(Sketcher.Constraint("Parallel", 8, 10))
sketch4.addConstraint(Sketcher.Constraint("Parallel", 2, 12))
sketch4.addConstraint(Sketcher.Constraint("Parallel", 12, 14))
sketch4.addConstraint(Sketcher.Constraint("Parallel", 10, 20))
sketch4.addConstraint(Sketcher.Constraint("Parallel", 20, 22))
sketch4.addConstraint(Sketcher.Constraint("Equal", 4, 16))
sketch4.addConstraint(Sketcher.Constraint("Equal", 0, 8))
sketch4.addConstraint(Sketcher.Constraint("Equal", 2, 10))
sketch4.addConstraint(Sketcher.Constraint("Equal", 8, 12))
sketch4.addConstraint(Sketcher.Constraint("Equal", 12, 20))
sketch4.addConstraint(Sketcher.Constraint("Angle", 0, Q("60 deg")))
sketch4.addConstraint(Sketcher.Constraint("Angle", 8, Q("-60 deg")))
sketch4.addConstraint(Sketcher.Constraint("DistanceY", -1, 1, 0, 2, Q("120.844998 mm")))
sketch4.addConstraint(Sketcher.Constraint("Radius", 1, Q("17.388037 mm")))
sketch4.addConstraint(Sketcher.Constraint("Radius", 3, Q("63.229636 mm")))
sketch4.addConstraint(Sketcher.Constraint("DistanceY", 1, 3, 0, 2, Q("8.855001 mm")))
sketch4.addConstraint(Sketcher.Constraint("DistanceX", 6, 2, 6, 1, Q("68.52311 mm")))
sketch4.addConstraint(Sketcher.Constraint("DistanceX", 4, 1, 4, 2, Q("68.709287 mm")))
pad4 = body2.newObject("PartDesign::Pad", "Pad003")
pad4.Profile = sketch4
pad4.setExpression("Length", "Params.pad4_length")
pad4.Reversed = True

doc.recompute()
